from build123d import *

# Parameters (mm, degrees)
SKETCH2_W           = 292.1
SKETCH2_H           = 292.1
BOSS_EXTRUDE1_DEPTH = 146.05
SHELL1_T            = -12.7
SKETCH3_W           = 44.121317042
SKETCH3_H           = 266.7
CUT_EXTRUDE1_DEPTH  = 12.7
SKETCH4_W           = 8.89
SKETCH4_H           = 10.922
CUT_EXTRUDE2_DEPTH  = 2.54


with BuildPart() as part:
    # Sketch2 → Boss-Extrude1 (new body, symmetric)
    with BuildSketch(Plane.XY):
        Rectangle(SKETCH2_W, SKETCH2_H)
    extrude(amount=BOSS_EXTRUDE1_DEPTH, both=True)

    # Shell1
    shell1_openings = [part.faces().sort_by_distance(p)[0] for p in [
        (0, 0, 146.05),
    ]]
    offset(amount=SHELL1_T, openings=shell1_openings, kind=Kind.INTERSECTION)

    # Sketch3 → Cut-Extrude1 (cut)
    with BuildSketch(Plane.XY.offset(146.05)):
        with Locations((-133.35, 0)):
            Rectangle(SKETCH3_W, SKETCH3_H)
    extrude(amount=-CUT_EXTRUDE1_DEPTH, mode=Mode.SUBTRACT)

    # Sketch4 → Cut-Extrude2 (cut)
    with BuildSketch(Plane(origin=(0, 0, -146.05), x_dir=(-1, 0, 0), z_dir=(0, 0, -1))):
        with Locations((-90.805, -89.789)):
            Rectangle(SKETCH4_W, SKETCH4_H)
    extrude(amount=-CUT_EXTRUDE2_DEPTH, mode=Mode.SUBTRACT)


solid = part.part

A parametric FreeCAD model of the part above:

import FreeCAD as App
import Part
import Sketcher
Q = App.Units.Quantity


def faces_at(feature, points):
    """Names of the faces that lie closest to the given points."""
    faces = feature.Shape.Faces
    near = lambda p: min(range(len(faces)), key=lambda i: faces[i].distToShape(Part.Vertex(*p))[0])
    return sorted({f"Face{near(p) + 1}" for p in points})

doc = App.newDocument("Part")
body = doc.addObject("PartDesign::Body", "Body")

sketch1 = body.newObject("Sketcher::SketchObject", "Sketch")
sketch1.AttachmentSupport = (doc.getObject("XY_Plane"), [""])
sketch1.MapMode = "FlatFace"
sketch1.addGeometry(Part.LineSegment(App.Vector(-146, 146, 0), App.Vector(-146, -146, 0)), False)
sketch1.addGeometry(Part.LineSegment(App.Vector(-146, -146, 0), App.Vector(146, -146, 0)), False)
sketch1.addGeometry(Part.LineSegment(App.Vector(146, -146, 0), App.Vector(146, 146, 0)), False)
sketch1.addGeometry(Part.LineSegment(App.Vector(146, 146, 0), App.Vector(-146, 146, 0)), False)
sketch1.addConstraint(Sketcher.Constraint("Coincident", 0, 2, 1, 1))
sketch1.addConstraint(Sketcher.Constraint("Coincident", 1, 2, 2, 1))
sketch1.addConstraint(Sketcher.Constraint("Coincident", 2, 2, 3, 1))
sketch1.addConstraint(Sketcher.Constraint("Coincident", 3, 2, 0, 1))
sketch1.addConstraint(Sketcher.Constraint("Vertical", 0))
sketch1.addConstraint(Sketcher.Constraint("Horizontal", 1))
sketch1.addConstraint(Sketcher.Constraint("Vertical", 2))
sketch1.addConstraint(Sketcher.Constraint("Horizontal", 3))
sketch1.addConstraint(Sketcher.Constraint("Symmetric", 0, 2, 2, 2, -1, 1))
sketch1.addConstraint(Sketcher.Constraint("Equal", 3, 0))
sketch1.addConstraint(Sketcher.Constraint("DistanceX", 1, 1, 1, 2, Q("11.5 in")))
pad1 = body.newObject("PartDesign::Pad", "Pad")
pad1.Profile = sketch1
pad1.Length = Q("11.5 in")
pad1.Midplane = True
doc.recompute()

thickness = body.newObject("PartDesign::Thickness", "Thickness")
thickness.Base = (pad1, faces_at(pad1, [(0, 0, 146.05)]))
thickness.Value = Q("0.5 in")
thickness.Reversed = True
thickness.Join = "Intersection"

sketch2 = body.newObject("Sketcher::SketchObject", "Sketch001")
sketch2.AttachmentSupport = (doc.getObject("XY_Plane"), [""])
sketch2.MapMode = "FlatFace"
sketch2.AttachmentOffset = App.Placement(App.Vector(0, 0, 5.75 * 25.4), App.Rotation())
sketch2.addGeometry(Part.LineSegment(App.Vector(-155, 133, 0), App.Vector(-155, -133, 0)), False)
sketch2.addGeometry(Part.LineSegment(App.Vector(-155, -133, 0), App.Vector(-111, -133, 0)), False)
sketch2.addGeometry(Part.LineSegment(App.Vector(-111, -133, 0), App.Vector(-111, 133, 0)), False)
sketch2.addGeometry(Part.LineSegment(App.Vector(-111, 133, 0), App.Vector(-155, 133, 0)), False)
sketch2.addConstraint(Sketcher.Constraint("Coincident", 0, 2, 1, 1))
sketch2.addConstraint(Sketcher.Constraint("Coincident", 1, 2, 2, 1))
sketch2.addConstraint(Sketcher.Constraint("Coincident", 2, 2, 3, 1))
sketch2.addConstraint(Sketcher.Constraint("Coincident", 3, 2, 0, 1))
sketch2.addConstraint(Sketcher.Constraint("Vertical", 0))
sketch2.addConstraint(Sketcher.Constraint("Horizontal", 1))
sketch2.addConstraint(Sketcher.Constraint("Vertical", 2))
sketch2.addConstraint(Sketcher.Constraint("Horizontal", 3))
sketch2.addConstraint(Sketcher.Constraint("DistanceY", 0, 2, 0, 1, Q("10.5 in")))
sketch2.addConstraint(Sketcher.Constraint("DistanceY", 0, 2, -1, 1, Q("5.25 in")))
sketch2.addConstraint(Sketcher.Constraint("DistanceX", 1, 1, 1, 2, Q("44.121317 mm")))
sketch2.addConstraint(Sketcher.Constraint("DistanceX", 0, 2, -1, 1, Q("155.410659 mm")))
pocket1 = body.newObject("PartDesign::Pocket", "Pocket")
pocket1.Profile = sketch2
pocket1.Length = Q("0.5 in")

sketch3 = body.newObject("Sketcher::SketchObject", "Sketch002")
sketch3.AttachmentSupport = (doc.getObject("XY_Plane"), [""])
sketch3.MapMode = "FlatFace"
sketch3.AttachmentOffset = App.Placement(App.Vector(0, 0, -5.75 * 25.4), App.Rotation())
sketch3.addGeometry(Part.LineSegment(App.Vector(95, -84, 0), App.Vector(95, -95, 0)), False)
sketch3.addGeometry(Part.LineSegment(App.Vector(95, -95, 0), App.Vector(86, -95, 0)), False)
sketch3.addGeometry(Part.LineSegment(App.Vector(86, -95, 0), App.Vector(86, -84, 0)), False)
sketch3.addGeometry(Part.LineSegment(App.Vector(86, -84, 0), App.Vector(95, -84, 0)), False)
sketch3.addConstraint(Sketcher.Constraint("Coincident", 0, 2, 1, 1))
sketch3.addConstraint(Sketcher.Constraint("Coincident", 1, 2, 2, 1))
sketch3.addConstraint(Sketcher.Constraint("Coincident", 2, 2, 3, 1))
sketch3.addConstraint(Sketcher.Constraint("Coincident", 3, 2, 0, 1))
sketch3.addConstraint(Sketcher.Constraint("Vertical", 0))
sketch3.addConstraint(Sketcher.Constraint("Horizontal", 1))
sketch3.addConstraint(Sketcher.Constraint("Vertical", 2))
sketch3.addConstraint(Sketcher.Constraint("Horizontal", 3))
sketch3.addConstraint(Sketcher.Constraint("DistanceX", 1, 2, 1, 1, Q("0.35 in")))
sketch3.addConstraint(Sketcher.Constraint("DistanceY", 0, 2, 0, 1, Q("0.43 in")))
sketch3.addConstraint(Sketcher.Constraint("DistanceX", -1, 1, 1, 2, Q("3.4 in")))
sketch3.addConstraint(Sketcher.Constraint("DistanceY", 0, 2, -1, 1, Q("3.75 in")))
pocket2 = body.newObject("PartDesign::Pocket", "Pocket001")
pocket2.Profile = sketch3
pocket2.Length = Q("0.1 in")
pocket2.Reversed = True

doc.recompute()
